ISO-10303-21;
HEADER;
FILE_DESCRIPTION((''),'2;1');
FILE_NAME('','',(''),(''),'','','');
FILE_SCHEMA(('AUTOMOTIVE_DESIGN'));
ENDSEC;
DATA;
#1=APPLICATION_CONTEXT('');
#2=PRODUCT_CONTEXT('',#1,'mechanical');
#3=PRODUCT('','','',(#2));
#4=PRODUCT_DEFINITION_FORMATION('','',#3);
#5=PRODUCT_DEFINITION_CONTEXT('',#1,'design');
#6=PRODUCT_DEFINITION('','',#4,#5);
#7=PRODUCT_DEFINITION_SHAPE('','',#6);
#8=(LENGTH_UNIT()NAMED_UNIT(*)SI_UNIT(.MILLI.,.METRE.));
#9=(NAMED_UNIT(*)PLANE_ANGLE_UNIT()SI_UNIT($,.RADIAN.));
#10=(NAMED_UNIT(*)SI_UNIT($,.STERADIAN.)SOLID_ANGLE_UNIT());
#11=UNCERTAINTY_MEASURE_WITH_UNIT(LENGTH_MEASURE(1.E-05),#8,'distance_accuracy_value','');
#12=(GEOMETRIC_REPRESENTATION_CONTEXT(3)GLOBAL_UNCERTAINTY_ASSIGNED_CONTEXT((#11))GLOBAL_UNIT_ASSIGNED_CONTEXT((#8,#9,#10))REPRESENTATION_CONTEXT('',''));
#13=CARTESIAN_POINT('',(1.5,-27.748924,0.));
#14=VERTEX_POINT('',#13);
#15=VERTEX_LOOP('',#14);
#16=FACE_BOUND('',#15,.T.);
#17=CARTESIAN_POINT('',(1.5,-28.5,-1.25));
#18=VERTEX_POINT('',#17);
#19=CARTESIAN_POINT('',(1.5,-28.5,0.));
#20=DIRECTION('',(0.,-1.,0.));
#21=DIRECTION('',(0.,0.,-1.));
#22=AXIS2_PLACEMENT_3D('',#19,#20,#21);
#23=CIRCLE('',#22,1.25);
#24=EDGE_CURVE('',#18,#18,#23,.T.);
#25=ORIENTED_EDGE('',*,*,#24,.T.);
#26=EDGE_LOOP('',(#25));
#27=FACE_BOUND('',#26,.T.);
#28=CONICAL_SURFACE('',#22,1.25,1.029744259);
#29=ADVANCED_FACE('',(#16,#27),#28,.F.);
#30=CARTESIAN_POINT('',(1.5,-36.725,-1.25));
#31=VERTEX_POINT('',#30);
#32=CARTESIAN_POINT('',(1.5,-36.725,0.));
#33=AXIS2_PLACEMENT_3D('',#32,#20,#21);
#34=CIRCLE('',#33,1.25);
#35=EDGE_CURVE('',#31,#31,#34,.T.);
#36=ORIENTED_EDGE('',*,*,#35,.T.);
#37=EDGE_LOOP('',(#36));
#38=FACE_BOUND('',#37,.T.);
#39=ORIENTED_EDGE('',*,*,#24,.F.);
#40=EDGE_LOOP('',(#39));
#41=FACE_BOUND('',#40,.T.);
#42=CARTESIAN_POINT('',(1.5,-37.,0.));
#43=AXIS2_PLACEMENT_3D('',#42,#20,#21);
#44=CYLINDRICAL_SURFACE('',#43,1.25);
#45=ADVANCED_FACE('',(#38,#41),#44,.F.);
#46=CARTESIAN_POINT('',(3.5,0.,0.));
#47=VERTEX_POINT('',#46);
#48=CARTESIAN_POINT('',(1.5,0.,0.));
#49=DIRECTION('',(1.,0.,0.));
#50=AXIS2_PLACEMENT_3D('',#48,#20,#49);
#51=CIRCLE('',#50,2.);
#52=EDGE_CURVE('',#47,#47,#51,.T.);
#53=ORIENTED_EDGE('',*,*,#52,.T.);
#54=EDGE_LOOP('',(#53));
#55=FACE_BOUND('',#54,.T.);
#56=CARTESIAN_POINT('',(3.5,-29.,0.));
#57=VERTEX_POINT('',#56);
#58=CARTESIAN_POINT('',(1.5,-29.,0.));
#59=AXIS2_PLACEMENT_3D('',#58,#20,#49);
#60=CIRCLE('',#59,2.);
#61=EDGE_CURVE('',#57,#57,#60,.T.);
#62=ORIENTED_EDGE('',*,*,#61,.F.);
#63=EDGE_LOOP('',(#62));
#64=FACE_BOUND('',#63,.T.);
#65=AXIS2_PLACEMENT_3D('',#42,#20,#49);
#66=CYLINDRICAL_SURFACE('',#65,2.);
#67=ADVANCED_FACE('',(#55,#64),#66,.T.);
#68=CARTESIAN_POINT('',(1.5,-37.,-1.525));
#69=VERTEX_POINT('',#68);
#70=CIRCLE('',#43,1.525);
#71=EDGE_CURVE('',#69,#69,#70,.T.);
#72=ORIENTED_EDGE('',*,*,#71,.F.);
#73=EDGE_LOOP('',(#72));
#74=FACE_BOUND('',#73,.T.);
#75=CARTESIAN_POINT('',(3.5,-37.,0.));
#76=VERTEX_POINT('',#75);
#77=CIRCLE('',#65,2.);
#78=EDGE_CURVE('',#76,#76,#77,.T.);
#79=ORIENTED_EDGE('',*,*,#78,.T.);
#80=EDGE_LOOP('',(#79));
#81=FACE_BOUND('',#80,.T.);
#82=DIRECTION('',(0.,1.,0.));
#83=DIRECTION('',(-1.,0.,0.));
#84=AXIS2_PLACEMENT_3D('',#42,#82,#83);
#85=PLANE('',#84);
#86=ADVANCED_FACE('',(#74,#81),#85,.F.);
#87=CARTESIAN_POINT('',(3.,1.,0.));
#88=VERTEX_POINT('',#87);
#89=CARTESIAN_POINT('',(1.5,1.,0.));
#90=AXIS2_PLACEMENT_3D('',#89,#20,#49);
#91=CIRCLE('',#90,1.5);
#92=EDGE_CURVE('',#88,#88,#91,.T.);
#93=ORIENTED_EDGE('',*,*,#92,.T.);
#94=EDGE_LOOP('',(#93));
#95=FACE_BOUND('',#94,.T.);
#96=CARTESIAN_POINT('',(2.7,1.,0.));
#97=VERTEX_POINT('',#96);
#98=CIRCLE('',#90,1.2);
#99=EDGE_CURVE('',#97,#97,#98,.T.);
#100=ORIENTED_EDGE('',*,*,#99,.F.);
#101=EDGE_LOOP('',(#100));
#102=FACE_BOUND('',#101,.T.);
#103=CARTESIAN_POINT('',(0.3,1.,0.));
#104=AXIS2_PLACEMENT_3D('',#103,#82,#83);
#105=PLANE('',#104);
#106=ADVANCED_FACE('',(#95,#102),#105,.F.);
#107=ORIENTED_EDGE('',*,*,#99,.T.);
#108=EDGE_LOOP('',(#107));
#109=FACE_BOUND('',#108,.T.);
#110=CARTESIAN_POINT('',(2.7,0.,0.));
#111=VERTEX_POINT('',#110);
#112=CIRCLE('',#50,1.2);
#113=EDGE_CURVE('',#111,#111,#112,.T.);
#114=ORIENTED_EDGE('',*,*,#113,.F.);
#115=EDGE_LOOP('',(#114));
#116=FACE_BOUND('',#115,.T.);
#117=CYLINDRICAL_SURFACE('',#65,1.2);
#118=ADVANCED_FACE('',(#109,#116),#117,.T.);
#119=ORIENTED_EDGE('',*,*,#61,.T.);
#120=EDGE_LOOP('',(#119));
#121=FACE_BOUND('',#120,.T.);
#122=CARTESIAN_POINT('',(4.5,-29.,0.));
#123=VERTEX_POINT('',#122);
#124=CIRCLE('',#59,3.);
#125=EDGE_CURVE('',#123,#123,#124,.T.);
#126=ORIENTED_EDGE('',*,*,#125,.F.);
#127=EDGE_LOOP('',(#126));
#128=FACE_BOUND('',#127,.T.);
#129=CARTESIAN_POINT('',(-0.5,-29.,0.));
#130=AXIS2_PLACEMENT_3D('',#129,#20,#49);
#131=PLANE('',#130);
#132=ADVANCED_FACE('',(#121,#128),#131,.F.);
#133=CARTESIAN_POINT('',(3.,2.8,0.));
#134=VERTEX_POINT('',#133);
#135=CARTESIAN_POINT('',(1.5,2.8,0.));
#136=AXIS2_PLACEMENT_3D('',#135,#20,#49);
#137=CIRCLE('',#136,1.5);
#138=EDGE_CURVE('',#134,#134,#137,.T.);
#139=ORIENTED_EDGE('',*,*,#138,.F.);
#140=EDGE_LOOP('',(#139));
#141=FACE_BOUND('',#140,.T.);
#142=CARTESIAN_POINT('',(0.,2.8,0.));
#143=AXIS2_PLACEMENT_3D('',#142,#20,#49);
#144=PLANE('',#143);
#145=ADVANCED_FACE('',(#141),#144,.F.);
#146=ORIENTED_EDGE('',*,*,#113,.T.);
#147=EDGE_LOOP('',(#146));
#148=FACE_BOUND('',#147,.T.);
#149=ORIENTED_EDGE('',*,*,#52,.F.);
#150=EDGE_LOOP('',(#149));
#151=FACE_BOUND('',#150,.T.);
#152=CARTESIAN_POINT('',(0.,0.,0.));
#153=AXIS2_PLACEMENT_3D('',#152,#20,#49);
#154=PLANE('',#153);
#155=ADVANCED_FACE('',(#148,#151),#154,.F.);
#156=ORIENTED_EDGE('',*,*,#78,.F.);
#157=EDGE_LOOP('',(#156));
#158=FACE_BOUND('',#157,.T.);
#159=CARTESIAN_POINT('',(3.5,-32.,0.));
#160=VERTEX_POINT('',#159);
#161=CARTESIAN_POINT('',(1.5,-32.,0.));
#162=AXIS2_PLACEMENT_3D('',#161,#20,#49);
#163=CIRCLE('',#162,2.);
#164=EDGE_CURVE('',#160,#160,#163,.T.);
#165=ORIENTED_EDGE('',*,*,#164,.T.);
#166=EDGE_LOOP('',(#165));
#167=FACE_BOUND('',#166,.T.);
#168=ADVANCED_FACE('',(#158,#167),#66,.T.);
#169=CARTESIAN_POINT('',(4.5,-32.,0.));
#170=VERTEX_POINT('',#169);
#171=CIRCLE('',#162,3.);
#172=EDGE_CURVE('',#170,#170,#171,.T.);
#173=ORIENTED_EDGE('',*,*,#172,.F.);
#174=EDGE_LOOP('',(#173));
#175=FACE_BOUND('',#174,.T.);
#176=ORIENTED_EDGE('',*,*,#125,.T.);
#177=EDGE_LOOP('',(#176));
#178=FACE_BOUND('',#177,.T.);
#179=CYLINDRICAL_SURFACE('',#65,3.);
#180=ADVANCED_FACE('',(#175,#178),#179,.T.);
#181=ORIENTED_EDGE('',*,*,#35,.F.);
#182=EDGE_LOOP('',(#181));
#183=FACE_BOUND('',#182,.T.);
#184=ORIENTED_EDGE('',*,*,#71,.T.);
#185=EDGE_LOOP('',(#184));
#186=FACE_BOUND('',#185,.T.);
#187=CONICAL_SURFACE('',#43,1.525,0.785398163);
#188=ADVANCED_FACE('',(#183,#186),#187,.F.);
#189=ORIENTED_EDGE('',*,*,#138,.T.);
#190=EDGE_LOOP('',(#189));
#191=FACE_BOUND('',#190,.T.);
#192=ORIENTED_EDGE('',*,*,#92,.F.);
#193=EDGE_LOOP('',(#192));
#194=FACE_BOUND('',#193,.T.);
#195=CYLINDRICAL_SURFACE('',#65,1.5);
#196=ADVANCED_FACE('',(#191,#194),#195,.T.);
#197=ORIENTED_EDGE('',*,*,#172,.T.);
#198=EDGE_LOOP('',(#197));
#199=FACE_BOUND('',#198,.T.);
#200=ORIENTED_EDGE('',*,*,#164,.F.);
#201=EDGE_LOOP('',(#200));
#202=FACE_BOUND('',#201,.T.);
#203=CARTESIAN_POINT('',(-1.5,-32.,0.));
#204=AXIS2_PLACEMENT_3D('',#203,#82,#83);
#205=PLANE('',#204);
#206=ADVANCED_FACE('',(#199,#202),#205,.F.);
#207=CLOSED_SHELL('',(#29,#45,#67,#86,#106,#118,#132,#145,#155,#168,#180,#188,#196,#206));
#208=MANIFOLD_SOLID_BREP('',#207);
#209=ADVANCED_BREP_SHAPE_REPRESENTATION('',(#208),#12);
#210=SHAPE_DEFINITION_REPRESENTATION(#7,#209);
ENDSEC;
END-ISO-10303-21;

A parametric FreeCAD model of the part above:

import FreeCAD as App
import Part
import Sketcher
from FreeCAD import Vector

doc = App.newDocument("Part")
body = doc.addObject("PartDesign::Body", "Body")

# Sketch on XY plane
sketch1 = body.newObject("Sketcher::SketchObject", "Sketch")
sketch1.AttachmentSupport = (doc.getObject("XY_Plane"), [""])
sketch1.MapMode = "FlatFace"
sketch1.addGeometry([
    Part.LineSegment(Vector(-0.5, 0, 0), Vector(-0.5, -29, 0)),  # 0
    Part.LineSegment(Vector(-0.5, -29, 0), Vector(-1.5, -29, 0)),  # 1
    Part.LineSegment(Vector(-1.5, -29, 0), Vector(-1.5, -32, 0)),  # 2
    Part.LineSegment(Vector(-1.5, -32, 0), Vector(-0.5, -32, 0)),  # 3
    Part.LineSegment(Vector(-0.5, -32, 0), Vector(-0.5, -37, 0)),  # 4
    Part.LineSegment(Vector(-0.5, -37, 0), Vector(1.5, -37, 0)),  # 5
    Part.LineSegment(Vector(1.5, -37, 0), Vector(1.5, 2.8, 0)),  # 6
    Part.LineSegment(Vector(1.5, 2.8, 0), Vector(0, 2.8, 0)),  # 7
    Part.LineSegment(Vector(0, 2.8, 0), Vector(0, 1, 0)),  # 8
    Part.LineSegment(Vector(0, 1, 0), Vector(0.3, 1, 0)),  # 9
    Part.LineSegment(Vector(0.3, 1, 0), Vector(0.3, 0, 0)),  # 10
    Part.LineSegment(Vector(0.3, 0, 0), Vector(-0.5, 0, 0)),  # 11
], False)
sketch1.addGeometry(Part.LineSegment(Vector(1.5, -37, 0), Vector(1.5, 2.8, 0)), True)  # axis
sketch1.addConstraint([
    Sketcher.Constraint("Coincident", 0, 2, 1, 1),
    Sketcher.Constraint("Coincident", 1, 2, 2, 1),
    Sketcher.Constraint("Coincident", 2, 2, 3, 1),
    Sketcher.Constraint("Coincident", 3, 2, 4, 1),
    Sketcher.Constraint("Coincident", 4, 2, 5, 1),
    Sketcher.Constraint("Coincident", 5, 2, 6, 1),
    Sketcher.Constraint("Coincident", 6, 2, 7, 1),
    Sketcher.Constraint("Coincident", 7, 2, 8, 1),
    Sketcher.Constraint("Coincident", 8, 2, 9, 1),
    Sketcher.Constraint("Coincident", 9, 2, 10, 1),
    Sketcher.Constraint("Coincident", 10, 2, 11, 1),
    Sketcher.Constraint("Coincident", 11, 2, 0, 1),
    Sketcher.Constraint("Vertical", 0),
    Sketcher.Constraint("Horizontal", 1),
    Sketcher.Constraint("Vertical", 2),
    Sketcher.Constraint("Horizontal", 3),
    Sketcher.Constraint("Vertical", 4),
    Sketcher.Constraint("Horizontal", 5),
    Sketcher.Constraint("Vertical", 6),
    Sketcher.Constraint("Horizontal", 7),
    Sketcher.Constraint("Vertical", 8),
    Sketcher.Constraint("Horizontal", 9),
    Sketcher.Constraint("Vertical", 10),
    Sketcher.Constraint("Horizontal", 11),
    Sketcher.Constraint("Vertical", 12),
    Sketcher.Constraint("Coincident", 12, 1, 5, 2),
    Sketcher.Constraint("PointOnObject", 7, 2, -2),
    Sketcher.Constraint("PointOnObject", 10, 2, -1),
    Sketcher.Constraint("Horizontal", 7, 2, 12, 2),
    Sketcher.Constraint("Vertical", 0, 2, 3, 2),
    Sketcher.Constraint("Equal", 3, 10),
    Sketcher.Constraint("DistanceX", 1, 2, 1, 1, 1.0),
    Sketcher.Constraint("DistanceX", 5, 1, 5, 2, 2.0),
    Sketcher.Constraint("DistanceY", 0, 2, 0, 1, 29.0),
    Sketcher.Constraint("DistanceY", 2, 2, 2, 1, 3.0),
    Sketcher.Constraint("DistanceY", 4, 2, 4, 1, 5.0),
    Sketcher.Constraint("DistanceX", 7, 2, 7, 1, 1.5),
    Sketcher.Constraint("DistanceX", 9, 1, 9, 2, 0.3),
    Sketcher.Constraint("DistanceY", 6, 1, 6, 2, 39.8),
])
revolution = body.newObject("PartDesign::Revolution", "Revolution")
revolution.Profile = sketch1
revolution.ReferenceAxis = (sketch1, ["Axis0"])
revolution.Angle = 360

# Sketch on XZ plane
sketch2 = body.newObject("Sketcher::SketchObject", "Sketch001")
sketch2.AttachmentSupport = (doc.getObject("XZ_Plane"), [""])
sketch2.MapMode = "FlatFace"
sketch2.AttachmentOffset = App.Placement(Vector(0, 0, 37), App.Rotation())
sketch2.addGeometry(Part.Circle(Vector(1.5, 0, 0), Vector(0, 0, 1), 1.2), False)
sketch2.addConstraint([
    Sketcher.Constraint("PointOnObject", 0, 3, -1),
    Sketcher.Constraint("Diameter", 0, 2.5),
    Sketcher.Constraint("DistanceX", -1, 1, 0, 3, 1.5),
])
doc.recompute()
hole = body.newObject("PartDesign::Hole", "Hole")
hole.Profile = sketch2
hole.ThreadType = "None"
hole.Diameter = 2.5
hole.DepthType = "Dimension"
hole.Depth = 8.5
hole.DrillPoint = "Angled"
hole.DrillPointAngle = 118
hole.HoleCutType = "Countersink"
hole.HoleCutDiameter = 3.05
hole.HoleCutCountersinkAngle = 90

doc.recompute()
